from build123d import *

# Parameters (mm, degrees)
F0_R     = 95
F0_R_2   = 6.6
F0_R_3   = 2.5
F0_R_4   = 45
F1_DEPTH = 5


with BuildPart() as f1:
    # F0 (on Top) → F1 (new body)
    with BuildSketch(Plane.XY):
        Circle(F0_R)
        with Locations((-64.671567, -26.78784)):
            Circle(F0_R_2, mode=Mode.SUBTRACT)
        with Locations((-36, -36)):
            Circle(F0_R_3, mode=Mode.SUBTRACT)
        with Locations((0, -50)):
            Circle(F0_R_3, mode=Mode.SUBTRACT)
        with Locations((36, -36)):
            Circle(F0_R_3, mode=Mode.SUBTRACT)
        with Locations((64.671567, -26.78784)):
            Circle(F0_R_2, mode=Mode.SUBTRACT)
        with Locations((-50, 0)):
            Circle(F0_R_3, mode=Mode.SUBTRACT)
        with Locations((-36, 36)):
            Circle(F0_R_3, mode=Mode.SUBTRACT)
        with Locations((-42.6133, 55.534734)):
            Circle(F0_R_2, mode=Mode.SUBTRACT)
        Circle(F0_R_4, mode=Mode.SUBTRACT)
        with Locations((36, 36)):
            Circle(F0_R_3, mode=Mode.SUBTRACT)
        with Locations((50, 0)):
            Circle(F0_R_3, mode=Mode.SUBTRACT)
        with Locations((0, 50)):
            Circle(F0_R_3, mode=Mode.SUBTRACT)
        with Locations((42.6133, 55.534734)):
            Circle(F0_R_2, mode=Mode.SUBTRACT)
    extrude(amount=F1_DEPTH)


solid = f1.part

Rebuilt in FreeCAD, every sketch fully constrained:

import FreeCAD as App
import Part
import Sketcher

V = App.Vector
Q = App.Units.Quantity

doc = App.newDocument("Part")
body = doc.addObject("PartDesign::Body", "Body")

# Sketch on XY plane
sketch1 = doc.addObject("Sketcher::SketchObject", "Sketch")
body.addObject(sketch1)
sketch1.AttachmentSupport = (doc.XY_Plane, [""])
sketch1.MapMode = "FlatFace"
sketch1.addGeometry([
    Part.Circle(V(0, 0, 0), V(0, 0, 1), 95),  # 0
    Part.Circle(V(-64.7, -26.8, 0), V(0, 0, 1), 6.6),  # 1
    Part.Circle(V(-36, -36, 0), V(0, 0, 1), 2.5),  # 2
    Part.Circle(V(-50, 0, 0), V(0, 0, 1), 2.5),  # 3
    Part.Circle(V(0, -50, 0), V(0, 0, 1), 2.5),  # 4
    Part.Circle(V(36, -36, 0), V(0, 0, 1), 2.5),  # 5
    Part.Circle(V(64.7, -26.8, 0), V(0, 0, 1), 6.6),  # 6
    Part.Circle(V(0, 0, 0), V(0, 0, 1), 45),  # 7
    Part.Circle(V(50, 0, 0), V(0, 0, 1), 2.5),  # 8
    Part.Circle(V(-36, 36, 0), V(0, 0, 1), 2.5),  # 9
    Part.Circle(V(-42.6, 55.5, 0), V(0, 0, 1), 6.6),  # 10
    Part.Circle(V(0, 50, 0), V(0, 0, 1), 2.5),  # 11
    Part.Circle(V(36, 36, 0), V(0, 0, 1), 2.5),  # 12
    Part.Circle(V(42.6, 55.5, 0), V(0, 0, 1), 6.6),  # 13
], False)
sketch1.addConstraint([
    Sketcher.Constraint("Coincident", 0, 3, -1, 1),
    Sketcher.Constraint("Coincident", 7, 3, -1, 1),
    Sketcher.Constraint("Equal", 2, 3),
    Sketcher.Constraint("Equal", 3, 4),
    Sketcher.Constraint("Equal", 4, 5),
    Sketcher.Constraint("Equal", 1, 6),
    Sketcher.Constraint("Equal", 5, 8),
    Sketcher.Constraint("Equal", 8, 9),
    Sketcher.Constraint("Equal", 6, 10),
    Sketcher.Constraint("Equal", 9, 11),
    Sketcher.Constraint("Equal", 11, 12),
    Sketcher.Constraint("Equal", 10, 13),
    Sketcher.Constraint("Symmetric", 3, 3, 8, 3, -1, 1),
    Sketcher.Constraint("Symmetric", 5, 3, 9, 3, -1, 1),
    Sketcher.Constraint("Symmetric", 4, 3, 11, 3, -1, 1),
    Sketcher.Constraint("Symmetric", 2, 3, 12, 3, -1, 1),
    Sketcher.Constraint("Symmetric", 2, 3, 5, 3, -2),
    Sketcher.Constraint("Symmetric", 1, 3, 6, 3, -2),
    Sketcher.Constraint("Symmetric", 10, 3, 13, 3, -2),
    Sketcher.Constraint("PointOnObject", 3, 3, -1),
    Sketcher.Constraint("PointOnObject", 4, 3, -2),
    Sketcher.Constraint("Diameter", 0, Q("190 mm")),
    Sketcher.Constraint("Diameter", 2, Q("5 mm")),
    Sketcher.Constraint("Diameter", 7, Q("90 mm")),
    Sketcher.Constraint("Diameter", 1, Q("13.2 mm")),
    Sketcher.Constraint("DistanceX", 2, 3, -1, 1, Q("36 mm")),
    Sketcher.Constraint("DistanceY", 2, 3, -1, 1, Q("36 mm")),
    Sketcher.Constraint("DistanceX", 3, 3, -1, 1, Q("50 mm")),
    Sketcher.Constraint("DistanceY", 4, 3, -1, 1, Q("50 mm")),
    Sketcher.Constraint("DistanceX", 10, 3, -1, 1, Q("42.6133 mm")),
    Sketcher.Constraint("DistanceY", 1, 3, -1, 1, Q("26.78784 mm")),
    Sketcher.Constraint("DistanceX", 1, 3, -1, 1, Q("64.671567 mm")),
    Sketcher.Constraint("DistanceY", -1, 1, 10, 3, Q("55.534734 mm")),
])
pad1 = doc.addObject("PartDesign::Pad", "Pad")
body.addObject(pad1)
pad1.Profile = sketch1
pad1.Length = 5

doc.recompute()
